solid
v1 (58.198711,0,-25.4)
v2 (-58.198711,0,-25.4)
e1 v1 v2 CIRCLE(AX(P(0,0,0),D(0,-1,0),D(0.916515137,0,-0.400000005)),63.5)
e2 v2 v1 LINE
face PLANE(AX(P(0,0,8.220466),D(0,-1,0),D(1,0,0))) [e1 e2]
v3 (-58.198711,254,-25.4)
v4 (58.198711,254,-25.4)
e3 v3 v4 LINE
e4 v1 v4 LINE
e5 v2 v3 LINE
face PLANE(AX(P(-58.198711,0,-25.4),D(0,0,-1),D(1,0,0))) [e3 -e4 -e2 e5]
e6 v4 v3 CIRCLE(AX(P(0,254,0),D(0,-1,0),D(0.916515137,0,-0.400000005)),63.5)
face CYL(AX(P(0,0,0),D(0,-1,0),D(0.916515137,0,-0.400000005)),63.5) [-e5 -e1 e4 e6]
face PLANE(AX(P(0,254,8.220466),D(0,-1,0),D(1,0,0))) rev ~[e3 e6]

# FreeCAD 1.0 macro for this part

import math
import FreeCAD as App
import Part
import Sketcher
from FreeCAD import Vector
Q = App.Units.Quantity

doc = App.newDocument("Part")
body = doc.addObject("PartDesign::Body", "Body")

# Sketch on XZ plane
sketch1 = body.newObject("Sketcher::SketchObject", "Sketch")
sketch1.AttachmentSupport = (doc.getObject("XZ_Plane"), [""])
sketch1.MapMode = "FlatFace"
sketch1.addGeometry([
    Part.ArcOfCircle(Part.Circle(Vector(0, 0, 0), Vector(0, 0, 1), 63), math.radians(-24), math.radians(204)),
    Part.LineSegment(Vector(-58, -25, 0), Vector(58, -25, 0)),
], False)
sketch1.addConstraint([
    Sketcher.Constraint("Coincident", 0, 1, 1, 2),
    Sketcher.Constraint("Coincident", 1, 1, 0, 2),
    Sketcher.Constraint("Horizontal", 1),
    Sketcher.Constraint("Coincident", 0, 3, -1, 1),
    Sketcher.Constraint("Radius", 0, Q("2.5 in")),
    Sketcher.Constraint("DistanceY", 0, 1, -1, 1, Q("1 in")),
])
pad1 = body.newObject("PartDesign::Pad", "Pad")
pad1.Profile = sketch1
pad1.Length = Q("10 in")
pad1.Reversed = True

doc.recompute()
